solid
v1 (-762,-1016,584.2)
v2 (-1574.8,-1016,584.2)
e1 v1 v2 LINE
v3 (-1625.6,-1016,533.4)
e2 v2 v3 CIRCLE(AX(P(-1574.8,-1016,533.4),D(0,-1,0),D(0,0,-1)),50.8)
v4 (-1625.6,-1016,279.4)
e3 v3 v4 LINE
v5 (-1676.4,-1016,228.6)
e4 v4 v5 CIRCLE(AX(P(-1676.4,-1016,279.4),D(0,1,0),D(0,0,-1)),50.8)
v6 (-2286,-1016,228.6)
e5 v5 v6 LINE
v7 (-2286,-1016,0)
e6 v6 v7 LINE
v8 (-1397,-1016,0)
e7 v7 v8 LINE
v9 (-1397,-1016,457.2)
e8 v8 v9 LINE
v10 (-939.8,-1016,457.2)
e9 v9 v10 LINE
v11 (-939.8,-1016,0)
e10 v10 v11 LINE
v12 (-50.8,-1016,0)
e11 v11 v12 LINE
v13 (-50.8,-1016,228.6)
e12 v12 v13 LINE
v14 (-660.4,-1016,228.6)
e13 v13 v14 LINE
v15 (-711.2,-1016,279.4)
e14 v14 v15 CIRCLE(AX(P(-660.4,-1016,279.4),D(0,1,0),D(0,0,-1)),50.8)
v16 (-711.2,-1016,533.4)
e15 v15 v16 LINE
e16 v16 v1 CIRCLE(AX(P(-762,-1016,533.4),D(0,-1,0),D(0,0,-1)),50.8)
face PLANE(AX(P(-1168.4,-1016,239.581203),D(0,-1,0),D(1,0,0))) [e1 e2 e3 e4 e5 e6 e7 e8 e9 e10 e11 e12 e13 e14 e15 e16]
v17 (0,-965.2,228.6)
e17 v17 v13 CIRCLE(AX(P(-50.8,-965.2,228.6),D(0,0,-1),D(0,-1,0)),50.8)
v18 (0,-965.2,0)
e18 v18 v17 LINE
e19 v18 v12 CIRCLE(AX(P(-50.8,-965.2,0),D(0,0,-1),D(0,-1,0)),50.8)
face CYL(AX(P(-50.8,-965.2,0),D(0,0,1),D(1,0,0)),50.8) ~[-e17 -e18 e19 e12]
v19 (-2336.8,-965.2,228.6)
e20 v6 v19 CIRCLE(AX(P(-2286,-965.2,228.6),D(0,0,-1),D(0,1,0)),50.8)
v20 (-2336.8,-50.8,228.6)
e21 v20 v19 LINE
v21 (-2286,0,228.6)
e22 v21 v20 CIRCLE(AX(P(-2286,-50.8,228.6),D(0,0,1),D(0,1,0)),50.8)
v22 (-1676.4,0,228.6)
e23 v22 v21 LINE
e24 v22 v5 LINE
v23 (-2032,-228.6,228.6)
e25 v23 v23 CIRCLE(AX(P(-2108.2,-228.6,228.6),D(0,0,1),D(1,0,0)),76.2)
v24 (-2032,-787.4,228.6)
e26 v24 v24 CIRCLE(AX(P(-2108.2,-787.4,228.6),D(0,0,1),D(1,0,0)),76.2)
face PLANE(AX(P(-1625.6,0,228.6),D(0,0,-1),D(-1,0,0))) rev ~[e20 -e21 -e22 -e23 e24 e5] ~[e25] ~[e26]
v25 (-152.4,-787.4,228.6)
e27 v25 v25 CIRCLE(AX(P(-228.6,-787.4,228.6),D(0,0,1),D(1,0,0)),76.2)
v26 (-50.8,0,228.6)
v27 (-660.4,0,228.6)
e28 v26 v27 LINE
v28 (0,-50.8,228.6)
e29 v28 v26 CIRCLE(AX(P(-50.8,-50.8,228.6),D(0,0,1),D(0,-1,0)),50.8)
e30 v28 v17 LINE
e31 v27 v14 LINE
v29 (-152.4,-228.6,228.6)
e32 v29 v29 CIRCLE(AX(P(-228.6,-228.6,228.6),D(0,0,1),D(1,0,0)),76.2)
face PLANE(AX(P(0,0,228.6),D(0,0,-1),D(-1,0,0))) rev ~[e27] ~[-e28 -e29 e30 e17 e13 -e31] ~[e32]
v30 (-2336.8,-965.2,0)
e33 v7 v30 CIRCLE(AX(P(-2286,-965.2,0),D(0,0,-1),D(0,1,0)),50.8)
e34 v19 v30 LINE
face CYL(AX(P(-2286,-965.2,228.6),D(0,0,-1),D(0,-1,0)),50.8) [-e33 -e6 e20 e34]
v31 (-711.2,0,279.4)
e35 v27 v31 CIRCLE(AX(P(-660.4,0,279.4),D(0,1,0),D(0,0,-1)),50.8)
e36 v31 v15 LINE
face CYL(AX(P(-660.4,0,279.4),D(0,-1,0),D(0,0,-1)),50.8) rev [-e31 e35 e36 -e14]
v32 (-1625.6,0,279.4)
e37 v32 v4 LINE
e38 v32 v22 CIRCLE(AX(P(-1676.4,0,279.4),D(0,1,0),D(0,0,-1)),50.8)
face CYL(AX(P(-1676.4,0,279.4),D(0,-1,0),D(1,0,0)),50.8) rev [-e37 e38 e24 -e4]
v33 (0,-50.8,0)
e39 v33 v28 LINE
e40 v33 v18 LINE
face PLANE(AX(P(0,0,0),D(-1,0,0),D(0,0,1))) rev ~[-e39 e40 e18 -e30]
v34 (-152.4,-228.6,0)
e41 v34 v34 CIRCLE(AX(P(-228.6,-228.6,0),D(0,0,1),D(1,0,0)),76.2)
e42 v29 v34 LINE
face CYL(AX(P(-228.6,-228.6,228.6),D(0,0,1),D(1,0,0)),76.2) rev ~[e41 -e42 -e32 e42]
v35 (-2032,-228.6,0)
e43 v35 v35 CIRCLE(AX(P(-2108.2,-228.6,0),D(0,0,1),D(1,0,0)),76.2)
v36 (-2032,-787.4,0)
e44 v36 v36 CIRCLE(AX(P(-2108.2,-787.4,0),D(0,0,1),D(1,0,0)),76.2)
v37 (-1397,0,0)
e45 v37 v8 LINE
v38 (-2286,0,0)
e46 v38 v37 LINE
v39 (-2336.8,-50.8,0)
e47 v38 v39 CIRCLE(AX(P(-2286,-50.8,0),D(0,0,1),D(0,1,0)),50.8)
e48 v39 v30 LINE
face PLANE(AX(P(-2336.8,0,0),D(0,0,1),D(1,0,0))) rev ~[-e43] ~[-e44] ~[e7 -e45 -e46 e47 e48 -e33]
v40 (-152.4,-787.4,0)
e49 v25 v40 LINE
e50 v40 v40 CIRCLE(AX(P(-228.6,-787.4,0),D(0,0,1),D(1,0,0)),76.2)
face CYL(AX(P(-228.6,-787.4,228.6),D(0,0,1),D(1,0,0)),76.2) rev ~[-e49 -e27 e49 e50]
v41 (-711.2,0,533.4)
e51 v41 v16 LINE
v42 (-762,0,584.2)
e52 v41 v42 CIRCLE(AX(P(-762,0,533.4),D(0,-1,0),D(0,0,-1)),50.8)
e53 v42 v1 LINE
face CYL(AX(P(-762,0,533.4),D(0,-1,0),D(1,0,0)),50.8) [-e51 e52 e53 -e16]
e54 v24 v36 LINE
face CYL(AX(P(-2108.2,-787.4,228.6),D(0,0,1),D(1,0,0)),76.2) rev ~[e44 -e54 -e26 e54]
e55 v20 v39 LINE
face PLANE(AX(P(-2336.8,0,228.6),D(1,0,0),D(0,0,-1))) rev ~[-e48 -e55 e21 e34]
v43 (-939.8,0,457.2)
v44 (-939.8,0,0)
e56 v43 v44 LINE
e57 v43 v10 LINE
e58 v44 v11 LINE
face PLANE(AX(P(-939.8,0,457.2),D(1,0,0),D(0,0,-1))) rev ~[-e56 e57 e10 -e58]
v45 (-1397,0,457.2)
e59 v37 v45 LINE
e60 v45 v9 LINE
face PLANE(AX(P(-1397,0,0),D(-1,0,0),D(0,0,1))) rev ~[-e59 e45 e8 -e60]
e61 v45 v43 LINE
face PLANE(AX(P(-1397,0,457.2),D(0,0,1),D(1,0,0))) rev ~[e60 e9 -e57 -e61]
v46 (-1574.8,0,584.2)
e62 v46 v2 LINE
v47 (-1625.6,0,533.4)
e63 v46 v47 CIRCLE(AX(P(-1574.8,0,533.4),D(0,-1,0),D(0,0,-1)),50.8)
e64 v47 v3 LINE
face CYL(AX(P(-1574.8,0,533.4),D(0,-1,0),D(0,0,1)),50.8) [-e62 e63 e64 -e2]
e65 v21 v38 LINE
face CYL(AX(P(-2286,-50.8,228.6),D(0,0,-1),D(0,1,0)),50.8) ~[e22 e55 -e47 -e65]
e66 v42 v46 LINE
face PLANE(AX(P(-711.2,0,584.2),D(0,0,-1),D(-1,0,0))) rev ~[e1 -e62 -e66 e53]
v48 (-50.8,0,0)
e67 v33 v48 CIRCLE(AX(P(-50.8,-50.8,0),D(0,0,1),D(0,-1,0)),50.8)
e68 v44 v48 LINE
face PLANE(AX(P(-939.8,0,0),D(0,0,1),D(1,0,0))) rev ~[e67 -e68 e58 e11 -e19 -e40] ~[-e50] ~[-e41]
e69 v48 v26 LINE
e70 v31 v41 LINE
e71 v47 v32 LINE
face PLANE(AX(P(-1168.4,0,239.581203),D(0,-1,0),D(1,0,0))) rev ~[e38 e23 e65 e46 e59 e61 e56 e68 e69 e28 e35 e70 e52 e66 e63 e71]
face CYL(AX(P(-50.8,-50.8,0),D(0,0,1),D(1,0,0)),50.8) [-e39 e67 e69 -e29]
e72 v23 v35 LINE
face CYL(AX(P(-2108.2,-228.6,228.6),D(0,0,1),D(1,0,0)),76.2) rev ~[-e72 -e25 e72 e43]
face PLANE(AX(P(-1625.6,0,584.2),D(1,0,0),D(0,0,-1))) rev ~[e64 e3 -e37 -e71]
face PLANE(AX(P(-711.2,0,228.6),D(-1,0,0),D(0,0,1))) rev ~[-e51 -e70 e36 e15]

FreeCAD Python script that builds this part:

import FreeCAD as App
import Part
import Sketcher
Q = App.Units.Quantity


def edges_at(feature, points):
    """Names of the edges that pass closest to the given points."""
    edges = feature.Shape.Edges
    near = lambda p: min(range(len(edges)), key=lambda i: edges[i].distToShape(Part.Vertex(*p))[0])
    return sorted({f"Edge{near(p) + 1}" for p in points})

doc = App.newDocument("Part")
body = doc.addObject("PartDesign::Body", "Body")

# Sketch on XZ plane
sketch1 = body.newObject("Sketcher::SketchObject", "Sketch")
sketch1.AttachmentSupport = (doc.getObject("XZ_Plane"), [""])
sketch1.MapMode = "FlatFace"
sketch1.addGeometry(Part.LineSegment(App.Vector(-940, 0, 0), App.Vector(0, 0, 0)), False)
sketch1.addGeometry(Part.LineSegment(App.Vector(0, 0, 0), App.Vector(0, 229, 0)), False)
sketch1.addGeometry(Part.LineSegment(App.Vector(0, 229, 0), App.Vector(-711, 229, 0)), False)
sketch1.addGeometry(Part.LineSegment(App.Vector(-711, 229, 0), App.Vector(-711, 584, 0)), False)
sketch1.addGeometry(Part.LineSegment(App.Vector(-711, 584, 0), App.Vector(-1626, 584, 0)), False)
sketch1.addGeometry(Part.LineSegment(App.Vector(-1626, 584, 0), App.Vector(-1626, 229, 0)), False)
sketch1.addGeometry(Part.LineSegment(App.Vector(-1626, 229, 0), App.Vector(-2337, 229, 0)), False)
sketch1.addGeometry(Part.LineSegment(App.Vector(-2337, 229, 0), App.Vector(-2337, 0, 0)), False)
sketch1.addGeometry(Part.LineSegment(App.Vector(-2337, 0, 0), App.Vector(-1397, 0, 0)), False)
sketch1.addGeometry(Part.LineSegment(App.Vector(-1397, 0, 0), App.Vector(-1397, 457, 0)), False)
sketch1.addGeometry(Part.LineSegment(App.Vector(-1397, 457, 0), App.Vector(-940, 457, 0)), False)
sketch1.addGeometry(Part.LineSegment(App.Vector(-940, 457, 0), App.Vector(-940, 0, 0)), False)
sketch1.addConstraint(Sketcher.Constraint("Coincident", 0, 2, 1, 1))
sketch1.addConstraint(Sketcher.Constraint("Coincident", 1, 2, 2, 1))
sketch1.addConstraint(Sketcher.Constraint("Coincident", 2, 2, 3, 1))
sketch1.addConstraint(Sketcher.Constraint("Coincident", 3, 2, 4, 1))
sketch1.addConstraint(Sketcher.Constraint("Coincident", 4, 2, 5, 1))
sketch1.addConstraint(Sketcher.Constraint("Coincident", 5, 2, 6, 1))
sketch1.addConstraint(Sketcher.Constraint("Coincident", 6, 2, 7, 1))
sketch1.addConstraint(Sketcher.Constraint("Coincident", 7, 2, 8, 1))
sketch1.addConstraint(Sketcher.Constraint("Coincident", 8, 2, 9, 1))
sketch1.addConstraint(Sketcher.Constraint("Coincident", 9, 2, 10, 1))
sketch1.addConstraint(Sketcher.Constraint("Coincident", 10, 2, 11, 1))
sketch1.addConstraint(Sketcher.Constraint("Coincident", 11, 2, 0, 1))
sketch1.addConstraint(Sketcher.Constraint("Horizontal", 0))
sketch1.addConstraint(Sketcher.Constraint("Vertical", 1))
sketch1.addConstraint(Sketcher.Constraint("Horizontal", 2))
sketch1.addConstraint(Sketcher.Constraint("Vertical", 3))
sketch1.addConstraint(Sketcher.Constraint("Horizontal", 4))
sketch1.addConstraint(Sketcher.Constraint("Vertical", 5))
sketch1.addConstraint(Sketcher.Constraint("Horizontal", 6))
sketch1.addConstraint(Sketcher.Constraint("Vertical", 7))
sketch1.addConstraint(Sketcher.Constraint("Horizontal", 8))
sketch1.addConstraint(Sketcher.Constraint("Vertical", 9))
sketch1.addConstraint(Sketcher.Constraint("Horizontal", 10))
sketch1.addConstraint(Sketcher.Constraint("Vertical", 11))
sketch1.addConstraint(Sketcher.Constraint("Coincident", 0, 2, -1, 1))
sketch1.addConstraint(Sketcher.Constraint("PointOnObject", 7, 2, -1))
sketch1.addConstraint(Sketcher.Constraint("Horizontal", 2, 2, 5, 2))
sketch1.addConstraint(Sketcher.Constraint("Equal", 2, 6))
sketch1.addConstraint(Sketcher.Constraint("Equal", 0, 8))
sketch1.addConstraint(Sketcher.Constraint("Equal", 10, 9))
sketch1.addConstraint(Sketcher.Constraint("DistanceX", 0, 1, 0, 2, Q("37 in")))
sketch1.addConstraint(Sketcher.Constraint("DistanceX", 2, 2, 2, 1, Q("28 in")))
sketch1.addConstraint(Sketcher.Constraint("DistanceX", 4, 2, 4, 1, Q("36 in")))
sketch1.addConstraint(Sketcher.Constraint("DistanceY", 1, 1, 1, 2, Q("9 in")))
sketch1.addConstraint(Sketcher.Constraint("DistanceY", 3, 1, 3, 2, Q("14 in")))
pad1 = body.newObject("PartDesign::Pad", "Pad")
pad1.Profile = sketch1
pad1.Length = Q("40 in")
doc.recompute()

fillet = body.newObject("PartDesign::Fillet", "Fillet")
fillet.Base = (pad1, edges_at(pad1, [(0, -1016, 114.3)]))
fillet.Radius = Q("2 in")
doc.recompute()

fillet2 = body.newObject("PartDesign::Fillet", "Fillet001")
fillet2.Base = (fillet, edges_at(fillet, [
    (0, 0, 114.3),
    (-711.2, -508, 228.6),
    (-711.2, -508, 584.2),
    (-1625.6, -508, 584.2),
    (-1625.6, -508, 228.6),
    (-2336.8, 0, 114.3),
    (-2336.8, -1016, 114.3),
]))
fillet2.Radius = Q("2 in")

# Sketch on XY plane
sketch2 = body.newObject("Sketcher::SketchObject", "Sketch001")
sketch2.AttachmentSupport = (doc.getObject("XY_Plane"), [""])
sketch2.MapMode = "FlatFace"
sketch2.AttachmentOffset = App.Placement(App.Vector(0, 0, 9 * 25.4), App.Rotation())
sketch2.addGeometry(Part.Circle(App.Vector(-229, -229, 0), App.Vector(0, 0, 1), 76), False)
sketch2.addGeometry(Part.Circle(App.Vector(-229, -787, 0), App.Vector(0, 0, 1), 76), False)
sketch2.addGeometry(Part.Circle(App.Vector(-2108, -787, 0), App.Vector(0, 0, 1), 76), False)
sketch2.addGeometry(Part.Circle(App.Vector(-2108, -229, 0), App.Vector(0, 0, 1), 76), False)
sketch2.addConstraint(Sketcher.Constraint("Equal", 0, 1))
sketch2.addConstraint(Sketcher.Constraint("Equal", 1, 2))
sketch2.addConstraint(Sketcher.Constraint("Equal", 2, 3))
sketch2.addConstraint(Sketcher.Constraint("Horizontal", 1, 3, 2, 3))
sketch2.addConstraint(Sketcher.Constraint("Horizontal", 0, 3, 3, 3))
sketch2.addConstraint(Sketcher.Constraint("Vertical", 0, 3, 1, 3))
sketch2.addConstraint(Sketcher.Constraint("Vertical", 2, 3, 3, 3))
sketch2.addConstraint(Sketcher.Constraint("Diameter", 0, Q("6 in")))
sketch2.addConstraint(Sketcher.Constraint("DistanceX", 0, 3, -1, 1, Q("9 in")))
sketch2.addConstraint(Sketcher.Constraint("DistanceY", 0, 3, -1, 1, Q("9 in")))
sketch2.addConstraint(Sketcher.Constraint("DistanceY", 1, 3, -1, 1, Q("31 in")))
sketch2.addConstraint(Sketcher.Constraint("DistanceX", 2, 3, -1, 1, Q("83 in")))
pocket1 = body.newObject("PartDesign::Pocket", "Pocket")
pocket1.Profile = sketch2
pocket1.Length = Q("90 in")

doc.recompute()
